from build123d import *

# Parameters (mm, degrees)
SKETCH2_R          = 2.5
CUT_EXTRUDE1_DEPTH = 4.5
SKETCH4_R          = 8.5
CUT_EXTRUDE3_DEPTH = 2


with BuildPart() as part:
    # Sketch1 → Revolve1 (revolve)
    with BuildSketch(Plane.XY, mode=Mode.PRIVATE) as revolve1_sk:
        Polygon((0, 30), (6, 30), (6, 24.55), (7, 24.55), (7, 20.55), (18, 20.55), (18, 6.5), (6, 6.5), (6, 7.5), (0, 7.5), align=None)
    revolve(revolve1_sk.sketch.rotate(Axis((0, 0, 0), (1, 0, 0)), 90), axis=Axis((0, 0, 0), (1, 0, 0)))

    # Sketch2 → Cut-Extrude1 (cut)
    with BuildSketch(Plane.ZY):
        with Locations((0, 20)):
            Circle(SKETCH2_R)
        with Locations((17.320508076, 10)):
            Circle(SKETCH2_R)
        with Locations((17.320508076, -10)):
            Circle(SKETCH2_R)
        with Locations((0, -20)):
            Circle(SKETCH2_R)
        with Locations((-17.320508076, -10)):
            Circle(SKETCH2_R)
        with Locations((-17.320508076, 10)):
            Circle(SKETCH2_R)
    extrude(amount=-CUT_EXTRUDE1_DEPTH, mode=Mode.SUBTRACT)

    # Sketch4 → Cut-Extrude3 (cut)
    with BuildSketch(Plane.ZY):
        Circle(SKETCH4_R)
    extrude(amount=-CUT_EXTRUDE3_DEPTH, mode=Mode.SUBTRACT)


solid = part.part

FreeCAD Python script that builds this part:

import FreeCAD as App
import Part
import Sketcher
Q = App.Units.Quantity

doc = App.newDocument("Part")
params = doc.addObject("Spreadsheet::Sheet", "Params")
for row, (alias, value) in enumerate([
    ("sketch1_width", "6 mm"),
    ("sketch1_width2", "12 mm"),
    ("sketch1_width3", "11 mm"),
    ("sketch1_height", "4 mm"),
    ("sketch1_height2", "22.5 mm"),
    ("revolution_angle", "360 deg"),
    ("sketch2_diameter", "5 mm"),
    ("pocket1_length", "4.5 mm"),
    ("sketch3_diameter", "17 mm"),
    ("pocket2_length", "2 mm"),
], start=1):
    params.set(f"A{row}", alias)
    params.set(f"B{row}", "=" + value)
    params.setAlias(f"B{row}", alias)

body = doc.addObject("PartDesign::Body", "Body")

sketch1 = doc.addObject("Sketcher::SketchObject", "Sketch")
body.addObject(sketch1)
sketch1.AttachmentSupport = (doc.XY_Plane, [""])
sketch1.MapMode = "FlatFace"
sketch1.addGeometry([
    Part.LineSegment(App.Vector(6, 30, 0), App.Vector(0, 30, 0)),
    Part.LineSegment(App.Vector(0, 30, 0), App.Vector(0, 7.5, 0)),
    Part.LineSegment(App.Vector(0, 7.5, 0), App.Vector(6, 7.5, 0)),
    Part.LineSegment(App.Vector(6, 7.5, 0), App.Vector(6, 6.5, 0)),
    Part.LineSegment(App.Vector(6, 6.5, 0), App.Vector(18, 6.5, 0)),
    Part.LineSegment(App.Vector(18, 6.5, 0), App.Vector(18, 20.6, 0)),
    Part.LineSegment(App.Vector(18, 20.6, 0), App.Vector(7, 20.6, 0)),
    Part.LineSegment(App.Vector(7, 20.6, 0), App.Vector(7, 24.6, 0)),
    Part.LineSegment(App.Vector(7, 24.6, 0), App.Vector(6, 24.6, 0)),
    Part.LineSegment(App.Vector(6, 24.6, 0), App.Vector(6, 30, 0)),
], False)
sketch1.addConstraint([
    Sketcher.Constraint("Coincident", 0, 2, 1, 1),
    Sketcher.Constraint("Coincident", 1, 2, 2, 1),
    Sketcher.Constraint("Coincident", 2, 2, 3, 1),
    Sketcher.Constraint("Coincident", 3, 2, 4, 1),
    Sketcher.Constraint("Coincident", 4, 2, 5, 1),
    Sketcher.Constraint("Coincident", 5, 2, 6, 1),
    Sketcher.Constraint("Coincident", 6, 2, 7, 1),
    Sketcher.Constraint("Coincident", 7, 2, 8, 1),
    Sketcher.Constraint("Coincident", 8, 2, 9, 1),
    Sketcher.Constraint("Coincident", 9, 2, 0, 1),
    Sketcher.Constraint("Horizontal", 0),
    Sketcher.Constraint("Vertical", 1),
    Sketcher.Constraint("Horizontal", 2),
    Sketcher.Constraint("Vertical", 3),
    Sketcher.Constraint("Horizontal", 4),
    Sketcher.Constraint("Vertical", 5),
    Sketcher.Constraint("Horizontal", 6),
    Sketcher.Constraint("Vertical", 7),
    Sketcher.Constraint("Horizontal", 8),
    Sketcher.Constraint("Vertical", 9),
    Sketcher.Constraint("PointOnObject", 0, 2, -2),
    Sketcher.Constraint("Vertical", 3, 2, 8, 2),
    Sketcher.Constraint("Equal", 8, 3),
    Sketcher.Constraint("DistanceX", 0, 2, 0, 1, Q("6 mm")),
    Sketcher.Constraint("DistanceX", 4, 1, 4, 2, Q("12 mm")),
    Sketcher.Constraint("DistanceX", 6, 2, 6, 1, Q("11 mm")),
    Sketcher.Constraint("DistanceY", 7, 1, 7, 2, Q("4 mm")),
    Sketcher.Constraint("DistanceY", 1, 2, 1, 1, Q("22.5 mm")),
    Sketcher.Constraint("DistanceY", -1, 1, 0, 2, Q("30 mm")),
    Sketcher.Constraint("DistanceY", 5, 1, 5, 2, Q("14.05 mm")),
])
sketch1.setExpression("Constraints[23]", "Params.sketch1_width")
sketch1.setExpression("Constraints[24]", "Params.sketch1_width2")
sketch1.setExpression("Constraints[25]", "Params.sketch1_width3")
sketch1.setExpression("Constraints[26]", "Params.sketch1_height")
sketch1.setExpression("Constraints[27]", "Params.sketch1_height2")
revolution = doc.addObject("PartDesign::Revolution", "Revolution")
body.addObject(revolution)
revolution.Profile = sketch1
revolution.ReferenceAxis = (sketch1, ["H_Axis"])
revolution.setExpression("Angle", "Params.revolution_angle")

sketch2 = doc.addObject("Sketcher::SketchObject", "Sketch001")
body.addObject(sketch2)
sketch2.AttachmentSupport = (doc.YZ_Plane, [""])
sketch2.MapMode = "FlatFace"
sketch2.addGeometry([
    Part.Circle(App.Vector(20, 0, 0), App.Vector(0, 0, 1), 2.5),
    Part.Circle(App.Vector(10, 17.3, 0), App.Vector(0, 0, 1), 2.5),
    Part.Circle(App.Vector(-10, 17.3, 0), App.Vector(0, 0, 1), 2.5),
    Part.Circle(App.Vector(-20, 0, 0), App.Vector(0, 0, 1), 2.5),
    Part.Circle(App.Vector(-10, -17.3, 0), App.Vector(0, 0, 1), 2.5),
    Part.Circle(App.Vector(10, -17.3, 0), App.Vector(0, 0, 1), 2.5),
], False)
sketch2.addConstraint([
    Sketcher.Constraint("Equal", 0, 1),
    Sketcher.Constraint("Equal", 1, 2),
    Sketcher.Constraint("Equal", 2, 3),
    Sketcher.Constraint("Equal", 3, 4),
    Sketcher.Constraint("Equal", 4, 5),
    Sketcher.Constraint("Symmetric", 0, 3, 3, 3, -1, 1),
    Sketcher.Constraint("Symmetric", 1, 3, 4, 3, -1, 1),
    Sketcher.Constraint("Symmetric", 2, 3, 5, 3, -1, 1),
    Sketcher.Constraint("Symmetric", 1, 3, 2, 3, -2),
    Sketcher.Constraint("PointOnObject", 0, 3, -1),
    Sketcher.Constraint("Diameter", 0, Q("5 mm")),
    Sketcher.Constraint("DistanceX", -1, 1, 0, 3, Q("20 mm")),
    Sketcher.Constraint("DistanceX", -1, 1, 1, 3, Q("10 mm")),
    Sketcher.Constraint("DistanceY", -1, 1, 1, 3, Q("17.320508 mm")),
])
sketch2.setExpression("Constraints[10]", "Params.sketch2_diameter")
pocket1 = doc.addObject("PartDesign::Pocket", "Pocket")
body.addObject(pocket1)
pocket1.Profile = sketch2
pocket1.setExpression("Length", "Params.pocket1_length")
pocket1.Reversed = True

sketch3 = doc.addObject("Sketcher::SketchObject", "Sketch002")
body.addObject(sketch3)
sketch3.AttachmentSupport = (doc.YZ_Plane, [""])
sketch3.MapMode = "FlatFace"
sketch3.addGeometry(Part.Circle(App.Vector(0, 0, 0), App.Vector(0, 0, 1), 8), False)
sketch3.addConstraint([
    Sketcher.Constraint("Coincident", 0, 3, -1, 1),
    Sketcher.Constraint("Diameter", 0, Q("17 mm")),
])
sketch3.setExpression("Constraints[1]", "Params.sketch3_diameter")
pocket2 = doc.addObject("PartDesign::Pocket", "Pocket001")
body.addObject(pocket2)
pocket2.Profile = sketch3
pocket2.setExpression("Length", "Params.pocket2_length")
pocket2.Reversed = True

doc.recompute()
